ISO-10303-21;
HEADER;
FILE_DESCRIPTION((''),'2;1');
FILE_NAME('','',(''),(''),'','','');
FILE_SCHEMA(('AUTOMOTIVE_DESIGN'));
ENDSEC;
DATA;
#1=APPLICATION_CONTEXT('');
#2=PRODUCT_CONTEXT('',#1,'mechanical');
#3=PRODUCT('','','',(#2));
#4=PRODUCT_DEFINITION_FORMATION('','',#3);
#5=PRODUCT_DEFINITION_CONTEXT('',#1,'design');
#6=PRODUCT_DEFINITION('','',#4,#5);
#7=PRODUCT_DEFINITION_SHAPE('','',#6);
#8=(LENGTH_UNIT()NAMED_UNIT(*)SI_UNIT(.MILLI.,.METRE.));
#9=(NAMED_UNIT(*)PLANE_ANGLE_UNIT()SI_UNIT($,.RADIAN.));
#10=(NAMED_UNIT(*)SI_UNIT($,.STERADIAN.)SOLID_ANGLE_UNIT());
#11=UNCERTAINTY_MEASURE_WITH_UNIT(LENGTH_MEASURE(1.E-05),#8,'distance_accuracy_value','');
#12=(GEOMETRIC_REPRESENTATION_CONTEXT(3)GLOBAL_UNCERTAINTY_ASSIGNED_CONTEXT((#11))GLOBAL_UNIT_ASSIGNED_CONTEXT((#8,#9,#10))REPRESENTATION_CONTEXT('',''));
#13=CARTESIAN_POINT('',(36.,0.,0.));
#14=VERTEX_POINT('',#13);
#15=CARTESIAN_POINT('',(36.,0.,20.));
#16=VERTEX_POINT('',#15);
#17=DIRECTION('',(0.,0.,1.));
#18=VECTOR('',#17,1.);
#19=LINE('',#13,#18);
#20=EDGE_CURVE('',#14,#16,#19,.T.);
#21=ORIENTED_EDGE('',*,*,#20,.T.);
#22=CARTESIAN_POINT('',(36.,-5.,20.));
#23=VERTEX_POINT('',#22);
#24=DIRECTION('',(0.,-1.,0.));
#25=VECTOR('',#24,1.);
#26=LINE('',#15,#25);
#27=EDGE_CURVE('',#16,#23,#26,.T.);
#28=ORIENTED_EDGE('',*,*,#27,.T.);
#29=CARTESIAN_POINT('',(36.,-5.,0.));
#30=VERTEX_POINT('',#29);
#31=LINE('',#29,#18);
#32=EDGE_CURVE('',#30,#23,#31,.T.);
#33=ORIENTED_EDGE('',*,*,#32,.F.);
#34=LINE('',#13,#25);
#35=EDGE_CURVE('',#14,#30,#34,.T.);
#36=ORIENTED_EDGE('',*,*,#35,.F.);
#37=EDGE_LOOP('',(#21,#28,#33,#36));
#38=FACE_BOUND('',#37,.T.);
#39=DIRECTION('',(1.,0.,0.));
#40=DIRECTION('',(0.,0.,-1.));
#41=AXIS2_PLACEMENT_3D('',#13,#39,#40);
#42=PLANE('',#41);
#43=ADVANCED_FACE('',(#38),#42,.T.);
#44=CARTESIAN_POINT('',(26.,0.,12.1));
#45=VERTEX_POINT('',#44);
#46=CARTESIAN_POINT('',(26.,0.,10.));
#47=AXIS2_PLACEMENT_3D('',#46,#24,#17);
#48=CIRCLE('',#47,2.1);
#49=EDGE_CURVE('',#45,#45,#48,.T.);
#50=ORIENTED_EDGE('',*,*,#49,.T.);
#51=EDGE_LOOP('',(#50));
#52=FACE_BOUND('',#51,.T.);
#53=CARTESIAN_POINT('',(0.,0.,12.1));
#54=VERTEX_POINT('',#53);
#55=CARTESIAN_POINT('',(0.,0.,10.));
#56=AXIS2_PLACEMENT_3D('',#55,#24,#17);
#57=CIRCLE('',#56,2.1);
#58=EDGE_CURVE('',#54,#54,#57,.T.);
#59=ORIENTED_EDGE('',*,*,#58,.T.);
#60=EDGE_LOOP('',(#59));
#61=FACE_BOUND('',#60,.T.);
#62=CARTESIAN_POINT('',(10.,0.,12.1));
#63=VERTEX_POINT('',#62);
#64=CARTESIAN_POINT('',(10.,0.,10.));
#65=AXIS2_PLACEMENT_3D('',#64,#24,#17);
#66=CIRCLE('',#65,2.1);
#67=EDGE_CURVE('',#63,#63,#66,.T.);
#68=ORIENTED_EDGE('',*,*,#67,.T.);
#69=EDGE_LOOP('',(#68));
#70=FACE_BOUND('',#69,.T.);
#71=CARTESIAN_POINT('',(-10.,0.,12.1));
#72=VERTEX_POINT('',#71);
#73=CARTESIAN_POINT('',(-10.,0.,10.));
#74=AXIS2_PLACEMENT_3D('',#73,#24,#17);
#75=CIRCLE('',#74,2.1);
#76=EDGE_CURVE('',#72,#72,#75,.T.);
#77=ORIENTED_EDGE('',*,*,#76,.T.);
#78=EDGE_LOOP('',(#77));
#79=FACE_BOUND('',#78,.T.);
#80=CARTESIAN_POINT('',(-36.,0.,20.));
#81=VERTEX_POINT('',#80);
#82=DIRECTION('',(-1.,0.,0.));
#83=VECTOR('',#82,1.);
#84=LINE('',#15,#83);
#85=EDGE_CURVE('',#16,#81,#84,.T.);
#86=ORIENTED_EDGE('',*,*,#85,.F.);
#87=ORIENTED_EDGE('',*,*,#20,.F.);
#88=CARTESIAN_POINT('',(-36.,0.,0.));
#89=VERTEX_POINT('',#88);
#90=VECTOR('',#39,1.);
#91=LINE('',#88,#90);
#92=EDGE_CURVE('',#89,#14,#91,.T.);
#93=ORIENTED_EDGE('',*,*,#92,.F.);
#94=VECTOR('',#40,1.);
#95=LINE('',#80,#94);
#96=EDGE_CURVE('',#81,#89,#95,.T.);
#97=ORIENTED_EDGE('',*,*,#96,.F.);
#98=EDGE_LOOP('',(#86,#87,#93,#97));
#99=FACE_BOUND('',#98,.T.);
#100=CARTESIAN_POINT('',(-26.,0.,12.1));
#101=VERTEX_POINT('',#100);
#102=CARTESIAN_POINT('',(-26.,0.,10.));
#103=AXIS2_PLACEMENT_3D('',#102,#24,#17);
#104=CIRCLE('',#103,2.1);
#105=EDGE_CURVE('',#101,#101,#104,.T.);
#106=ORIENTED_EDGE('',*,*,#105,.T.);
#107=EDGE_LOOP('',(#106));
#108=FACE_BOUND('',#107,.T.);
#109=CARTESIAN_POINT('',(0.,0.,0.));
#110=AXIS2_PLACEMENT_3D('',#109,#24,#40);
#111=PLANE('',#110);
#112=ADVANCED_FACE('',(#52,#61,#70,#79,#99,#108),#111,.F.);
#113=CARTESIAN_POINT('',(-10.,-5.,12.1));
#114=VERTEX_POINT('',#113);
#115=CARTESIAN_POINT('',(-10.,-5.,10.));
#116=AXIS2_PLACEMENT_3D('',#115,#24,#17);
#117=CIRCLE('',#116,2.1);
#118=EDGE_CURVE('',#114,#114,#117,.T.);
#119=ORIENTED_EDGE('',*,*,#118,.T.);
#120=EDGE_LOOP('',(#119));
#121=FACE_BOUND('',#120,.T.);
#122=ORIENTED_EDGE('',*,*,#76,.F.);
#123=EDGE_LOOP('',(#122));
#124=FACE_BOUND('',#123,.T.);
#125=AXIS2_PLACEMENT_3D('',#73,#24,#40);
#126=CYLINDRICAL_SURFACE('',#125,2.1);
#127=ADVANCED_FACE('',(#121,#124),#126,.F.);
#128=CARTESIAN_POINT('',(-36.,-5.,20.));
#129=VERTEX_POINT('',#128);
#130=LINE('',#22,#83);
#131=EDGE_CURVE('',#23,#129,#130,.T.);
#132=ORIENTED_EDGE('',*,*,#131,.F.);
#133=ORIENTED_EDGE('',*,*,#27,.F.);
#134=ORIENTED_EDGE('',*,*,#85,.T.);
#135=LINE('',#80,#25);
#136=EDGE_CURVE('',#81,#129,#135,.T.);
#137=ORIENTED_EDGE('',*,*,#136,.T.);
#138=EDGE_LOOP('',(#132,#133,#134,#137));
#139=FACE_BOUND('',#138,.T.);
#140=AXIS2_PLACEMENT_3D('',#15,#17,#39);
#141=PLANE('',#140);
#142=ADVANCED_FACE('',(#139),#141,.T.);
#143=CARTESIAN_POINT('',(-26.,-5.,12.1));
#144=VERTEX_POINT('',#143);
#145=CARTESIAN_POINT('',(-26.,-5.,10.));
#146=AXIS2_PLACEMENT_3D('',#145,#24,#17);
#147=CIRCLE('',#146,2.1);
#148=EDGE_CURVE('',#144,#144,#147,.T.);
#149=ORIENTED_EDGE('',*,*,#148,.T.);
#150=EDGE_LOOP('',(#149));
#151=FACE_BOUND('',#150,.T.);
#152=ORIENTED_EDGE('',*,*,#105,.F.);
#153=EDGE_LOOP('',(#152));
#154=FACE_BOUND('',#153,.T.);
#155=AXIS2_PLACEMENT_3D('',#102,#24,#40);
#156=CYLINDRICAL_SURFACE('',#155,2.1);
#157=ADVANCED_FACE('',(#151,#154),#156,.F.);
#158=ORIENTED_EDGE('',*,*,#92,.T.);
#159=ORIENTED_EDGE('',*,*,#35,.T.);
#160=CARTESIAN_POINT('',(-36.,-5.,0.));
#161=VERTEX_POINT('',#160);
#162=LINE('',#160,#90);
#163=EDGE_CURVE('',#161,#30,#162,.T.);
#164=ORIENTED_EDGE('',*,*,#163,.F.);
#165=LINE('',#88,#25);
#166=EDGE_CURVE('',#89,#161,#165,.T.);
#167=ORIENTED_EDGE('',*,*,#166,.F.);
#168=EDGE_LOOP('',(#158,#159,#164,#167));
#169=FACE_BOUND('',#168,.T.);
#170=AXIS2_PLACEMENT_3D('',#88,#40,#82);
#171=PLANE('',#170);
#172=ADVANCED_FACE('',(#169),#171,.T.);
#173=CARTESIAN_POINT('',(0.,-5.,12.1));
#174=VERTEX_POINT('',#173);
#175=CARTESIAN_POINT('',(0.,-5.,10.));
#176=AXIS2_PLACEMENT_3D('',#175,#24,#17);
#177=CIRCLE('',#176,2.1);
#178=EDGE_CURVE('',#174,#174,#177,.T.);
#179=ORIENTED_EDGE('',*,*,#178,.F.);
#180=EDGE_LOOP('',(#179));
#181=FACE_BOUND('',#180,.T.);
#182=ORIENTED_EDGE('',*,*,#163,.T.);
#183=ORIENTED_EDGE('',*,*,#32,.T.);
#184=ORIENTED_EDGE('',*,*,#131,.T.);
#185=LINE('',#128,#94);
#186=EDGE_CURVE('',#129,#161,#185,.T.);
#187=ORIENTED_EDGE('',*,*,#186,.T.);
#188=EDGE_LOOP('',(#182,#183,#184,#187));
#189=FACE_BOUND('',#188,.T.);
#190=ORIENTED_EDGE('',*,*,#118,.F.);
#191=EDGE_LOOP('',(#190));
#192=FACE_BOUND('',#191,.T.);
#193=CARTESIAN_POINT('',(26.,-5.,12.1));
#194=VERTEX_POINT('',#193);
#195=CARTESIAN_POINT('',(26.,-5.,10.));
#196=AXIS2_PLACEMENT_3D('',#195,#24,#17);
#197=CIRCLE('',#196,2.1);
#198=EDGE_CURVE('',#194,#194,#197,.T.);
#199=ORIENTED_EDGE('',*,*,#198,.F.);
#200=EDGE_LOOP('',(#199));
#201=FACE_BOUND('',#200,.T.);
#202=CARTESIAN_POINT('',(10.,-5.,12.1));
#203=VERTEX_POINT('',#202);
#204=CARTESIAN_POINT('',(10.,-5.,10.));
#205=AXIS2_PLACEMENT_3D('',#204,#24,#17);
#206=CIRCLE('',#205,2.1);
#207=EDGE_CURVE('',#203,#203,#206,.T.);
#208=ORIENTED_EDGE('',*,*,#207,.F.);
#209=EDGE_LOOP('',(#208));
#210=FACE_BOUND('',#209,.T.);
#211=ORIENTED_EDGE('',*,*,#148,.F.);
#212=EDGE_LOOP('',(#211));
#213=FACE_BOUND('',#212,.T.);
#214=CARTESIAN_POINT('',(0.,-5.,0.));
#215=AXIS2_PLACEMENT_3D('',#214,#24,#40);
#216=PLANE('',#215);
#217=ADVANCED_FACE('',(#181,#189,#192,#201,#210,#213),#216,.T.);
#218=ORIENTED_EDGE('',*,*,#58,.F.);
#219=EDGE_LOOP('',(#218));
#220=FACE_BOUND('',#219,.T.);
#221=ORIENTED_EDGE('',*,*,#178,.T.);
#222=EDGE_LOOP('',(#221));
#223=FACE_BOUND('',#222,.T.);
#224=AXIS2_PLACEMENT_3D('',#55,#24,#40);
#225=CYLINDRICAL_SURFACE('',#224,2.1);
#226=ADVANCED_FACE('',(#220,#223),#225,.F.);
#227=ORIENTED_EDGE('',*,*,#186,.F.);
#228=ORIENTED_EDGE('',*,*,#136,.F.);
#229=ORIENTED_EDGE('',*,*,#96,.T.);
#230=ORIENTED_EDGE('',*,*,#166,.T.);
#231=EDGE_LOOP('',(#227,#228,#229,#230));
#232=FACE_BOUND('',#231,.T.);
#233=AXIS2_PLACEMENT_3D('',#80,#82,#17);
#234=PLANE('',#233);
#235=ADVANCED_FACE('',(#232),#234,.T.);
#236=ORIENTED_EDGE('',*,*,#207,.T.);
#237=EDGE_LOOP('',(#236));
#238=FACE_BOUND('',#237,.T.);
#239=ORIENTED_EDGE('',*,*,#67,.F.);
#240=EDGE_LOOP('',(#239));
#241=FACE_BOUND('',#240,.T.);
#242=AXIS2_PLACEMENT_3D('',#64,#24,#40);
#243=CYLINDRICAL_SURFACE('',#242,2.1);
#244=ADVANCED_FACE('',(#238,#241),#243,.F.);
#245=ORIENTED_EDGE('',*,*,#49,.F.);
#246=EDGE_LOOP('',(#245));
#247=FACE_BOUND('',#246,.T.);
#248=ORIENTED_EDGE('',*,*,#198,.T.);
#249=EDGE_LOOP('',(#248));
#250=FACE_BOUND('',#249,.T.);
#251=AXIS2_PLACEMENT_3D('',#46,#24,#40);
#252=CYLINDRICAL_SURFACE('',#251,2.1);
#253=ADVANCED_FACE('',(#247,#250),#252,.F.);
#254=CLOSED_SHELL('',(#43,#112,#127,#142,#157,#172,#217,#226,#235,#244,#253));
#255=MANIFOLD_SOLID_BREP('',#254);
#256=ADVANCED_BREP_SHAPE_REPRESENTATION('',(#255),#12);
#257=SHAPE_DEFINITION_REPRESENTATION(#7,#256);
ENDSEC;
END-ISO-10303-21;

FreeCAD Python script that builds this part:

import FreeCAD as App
import Part
import Sketcher
Q = App.Units.Quantity

doc = App.newDocument("Part")
body = doc.addObject("PartDesign::Body", "Body")

sketch1 = body.newObject("Sketcher::SketchObject", "Sketch")
sketch1.AttachmentSupport = (doc.getObject("XZ_Plane"), [""])
sketch1.MapMode = "FlatFace"
sketch1.AttachmentOffset = App.Placement(App.Vector(0, 0, 5), App.Rotation())
sketch1.addGeometry(Part.LineSegment(App.Vector(-36, 20, 0), App.Vector(-36, 0, 0)), False)
sketch1.addGeometry(Part.LineSegment(App.Vector(-36, 0, 0), App.Vector(36, 0, 0)), False)
sketch1.addGeometry(Part.LineSegment(App.Vector(36, 0, 0), App.Vector(36, 20, 0)), False)
sketch1.addGeometry(Part.LineSegment(App.Vector(36, 20, 0), App.Vector(-36, 20, 0)), False)
sketch1.addGeometry(Part.Circle(App.Vector(-26, 10, 0), App.Vector(0, 0, 1), 2.1), False)
sketch1.addGeometry(Part.Circle(App.Vector(-10, 10, 0), App.Vector(0, 0, 1), 2.1), False)
sketch1.addGeometry(Part.Circle(App.Vector(0, 10, 0), App.Vector(0, 0, 1), 2.1), False)
sketch1.addGeometry(Part.Circle(App.Vector(10, 10, 0), App.Vector(0, 0, 1), 2.1), False)
sketch1.addGeometry(Part.Circle(App.Vector(26, 10, 0), App.Vector(0, 0, 1), 2.1), False)
sketch1.addConstraint(Sketcher.Constraint("Coincident", 0, 2, 1, 1))
sketch1.addConstraint(Sketcher.Constraint("Coincident", 1, 2, 2, 1))
sketch1.addConstraint(Sketcher.Constraint("Coincident", 2, 2, 3, 1))
sketch1.addConstraint(Sketcher.Constraint("Coincident", 3, 2, 0, 1))
sketch1.addConstraint(Sketcher.Constraint("Vertical", 0))
sketch1.addConstraint(Sketcher.Constraint("Horizontal", 1))
sketch1.addConstraint(Sketcher.Constraint("Vertical", 2))
sketch1.addConstraint(Sketcher.Constraint("Horizontal", 3))
sketch1.addConstraint(Sketcher.Constraint("Equal", 4, 5))
sketch1.addConstraint(Sketcher.Constraint("Equal", 5, 6))
sketch1.addConstraint(Sketcher.Constraint("Equal", 6, 7))
sketch1.addConstraint(Sketcher.Constraint("Equal", 7, 8))
sketch1.addConstraint(Sketcher.Constraint("Symmetric", 0, 2, 1, 2, -1, 1))
sketch1.addConstraint(Sketcher.Constraint("Symmetric", 5, 3, 7, 3, -2))
sketch1.addConstraint(Sketcher.Constraint("Symmetric", 4, 3, 8, 3, -2))
sketch1.addConstraint(Sketcher.Constraint("PointOnObject", 6, 3, -2))
sketch1.addConstraint(Sketcher.Constraint("Horizontal", 4, 3, 5, 3))
sketch1.addConstraint(Sketcher.Constraint("Horizontal", 5, 3, 6, 3))
sketch1.addConstraint(Sketcher.Constraint("Diameter", 4, Q("4.2 mm")))
sketch1.addConstraint(Sketcher.Constraint("DistanceX", 1, 1, 1, 2, Q("72 mm")))
sketch1.addConstraint(Sketcher.Constraint("DistanceY", 0, 2, 0, 1, Q("20 mm")))
sketch1.addConstraint(Sketcher.Constraint("DistanceX", 4, 3, -1, 1, Q("26 mm")))
sketch1.addConstraint(Sketcher.Constraint("DistanceY", -1, 1, 4, 3, Q("10 mm")))
sketch1.addConstraint(Sketcher.Constraint("DistanceX", 5, 3, -1, 1, Q("10 mm")))
pad1 = body.newObject("PartDesign::Pad", "Pad")
pad1.Profile = sketch1
pad1.Length = 5
pad1.Reversed = True

doc.recompute()
